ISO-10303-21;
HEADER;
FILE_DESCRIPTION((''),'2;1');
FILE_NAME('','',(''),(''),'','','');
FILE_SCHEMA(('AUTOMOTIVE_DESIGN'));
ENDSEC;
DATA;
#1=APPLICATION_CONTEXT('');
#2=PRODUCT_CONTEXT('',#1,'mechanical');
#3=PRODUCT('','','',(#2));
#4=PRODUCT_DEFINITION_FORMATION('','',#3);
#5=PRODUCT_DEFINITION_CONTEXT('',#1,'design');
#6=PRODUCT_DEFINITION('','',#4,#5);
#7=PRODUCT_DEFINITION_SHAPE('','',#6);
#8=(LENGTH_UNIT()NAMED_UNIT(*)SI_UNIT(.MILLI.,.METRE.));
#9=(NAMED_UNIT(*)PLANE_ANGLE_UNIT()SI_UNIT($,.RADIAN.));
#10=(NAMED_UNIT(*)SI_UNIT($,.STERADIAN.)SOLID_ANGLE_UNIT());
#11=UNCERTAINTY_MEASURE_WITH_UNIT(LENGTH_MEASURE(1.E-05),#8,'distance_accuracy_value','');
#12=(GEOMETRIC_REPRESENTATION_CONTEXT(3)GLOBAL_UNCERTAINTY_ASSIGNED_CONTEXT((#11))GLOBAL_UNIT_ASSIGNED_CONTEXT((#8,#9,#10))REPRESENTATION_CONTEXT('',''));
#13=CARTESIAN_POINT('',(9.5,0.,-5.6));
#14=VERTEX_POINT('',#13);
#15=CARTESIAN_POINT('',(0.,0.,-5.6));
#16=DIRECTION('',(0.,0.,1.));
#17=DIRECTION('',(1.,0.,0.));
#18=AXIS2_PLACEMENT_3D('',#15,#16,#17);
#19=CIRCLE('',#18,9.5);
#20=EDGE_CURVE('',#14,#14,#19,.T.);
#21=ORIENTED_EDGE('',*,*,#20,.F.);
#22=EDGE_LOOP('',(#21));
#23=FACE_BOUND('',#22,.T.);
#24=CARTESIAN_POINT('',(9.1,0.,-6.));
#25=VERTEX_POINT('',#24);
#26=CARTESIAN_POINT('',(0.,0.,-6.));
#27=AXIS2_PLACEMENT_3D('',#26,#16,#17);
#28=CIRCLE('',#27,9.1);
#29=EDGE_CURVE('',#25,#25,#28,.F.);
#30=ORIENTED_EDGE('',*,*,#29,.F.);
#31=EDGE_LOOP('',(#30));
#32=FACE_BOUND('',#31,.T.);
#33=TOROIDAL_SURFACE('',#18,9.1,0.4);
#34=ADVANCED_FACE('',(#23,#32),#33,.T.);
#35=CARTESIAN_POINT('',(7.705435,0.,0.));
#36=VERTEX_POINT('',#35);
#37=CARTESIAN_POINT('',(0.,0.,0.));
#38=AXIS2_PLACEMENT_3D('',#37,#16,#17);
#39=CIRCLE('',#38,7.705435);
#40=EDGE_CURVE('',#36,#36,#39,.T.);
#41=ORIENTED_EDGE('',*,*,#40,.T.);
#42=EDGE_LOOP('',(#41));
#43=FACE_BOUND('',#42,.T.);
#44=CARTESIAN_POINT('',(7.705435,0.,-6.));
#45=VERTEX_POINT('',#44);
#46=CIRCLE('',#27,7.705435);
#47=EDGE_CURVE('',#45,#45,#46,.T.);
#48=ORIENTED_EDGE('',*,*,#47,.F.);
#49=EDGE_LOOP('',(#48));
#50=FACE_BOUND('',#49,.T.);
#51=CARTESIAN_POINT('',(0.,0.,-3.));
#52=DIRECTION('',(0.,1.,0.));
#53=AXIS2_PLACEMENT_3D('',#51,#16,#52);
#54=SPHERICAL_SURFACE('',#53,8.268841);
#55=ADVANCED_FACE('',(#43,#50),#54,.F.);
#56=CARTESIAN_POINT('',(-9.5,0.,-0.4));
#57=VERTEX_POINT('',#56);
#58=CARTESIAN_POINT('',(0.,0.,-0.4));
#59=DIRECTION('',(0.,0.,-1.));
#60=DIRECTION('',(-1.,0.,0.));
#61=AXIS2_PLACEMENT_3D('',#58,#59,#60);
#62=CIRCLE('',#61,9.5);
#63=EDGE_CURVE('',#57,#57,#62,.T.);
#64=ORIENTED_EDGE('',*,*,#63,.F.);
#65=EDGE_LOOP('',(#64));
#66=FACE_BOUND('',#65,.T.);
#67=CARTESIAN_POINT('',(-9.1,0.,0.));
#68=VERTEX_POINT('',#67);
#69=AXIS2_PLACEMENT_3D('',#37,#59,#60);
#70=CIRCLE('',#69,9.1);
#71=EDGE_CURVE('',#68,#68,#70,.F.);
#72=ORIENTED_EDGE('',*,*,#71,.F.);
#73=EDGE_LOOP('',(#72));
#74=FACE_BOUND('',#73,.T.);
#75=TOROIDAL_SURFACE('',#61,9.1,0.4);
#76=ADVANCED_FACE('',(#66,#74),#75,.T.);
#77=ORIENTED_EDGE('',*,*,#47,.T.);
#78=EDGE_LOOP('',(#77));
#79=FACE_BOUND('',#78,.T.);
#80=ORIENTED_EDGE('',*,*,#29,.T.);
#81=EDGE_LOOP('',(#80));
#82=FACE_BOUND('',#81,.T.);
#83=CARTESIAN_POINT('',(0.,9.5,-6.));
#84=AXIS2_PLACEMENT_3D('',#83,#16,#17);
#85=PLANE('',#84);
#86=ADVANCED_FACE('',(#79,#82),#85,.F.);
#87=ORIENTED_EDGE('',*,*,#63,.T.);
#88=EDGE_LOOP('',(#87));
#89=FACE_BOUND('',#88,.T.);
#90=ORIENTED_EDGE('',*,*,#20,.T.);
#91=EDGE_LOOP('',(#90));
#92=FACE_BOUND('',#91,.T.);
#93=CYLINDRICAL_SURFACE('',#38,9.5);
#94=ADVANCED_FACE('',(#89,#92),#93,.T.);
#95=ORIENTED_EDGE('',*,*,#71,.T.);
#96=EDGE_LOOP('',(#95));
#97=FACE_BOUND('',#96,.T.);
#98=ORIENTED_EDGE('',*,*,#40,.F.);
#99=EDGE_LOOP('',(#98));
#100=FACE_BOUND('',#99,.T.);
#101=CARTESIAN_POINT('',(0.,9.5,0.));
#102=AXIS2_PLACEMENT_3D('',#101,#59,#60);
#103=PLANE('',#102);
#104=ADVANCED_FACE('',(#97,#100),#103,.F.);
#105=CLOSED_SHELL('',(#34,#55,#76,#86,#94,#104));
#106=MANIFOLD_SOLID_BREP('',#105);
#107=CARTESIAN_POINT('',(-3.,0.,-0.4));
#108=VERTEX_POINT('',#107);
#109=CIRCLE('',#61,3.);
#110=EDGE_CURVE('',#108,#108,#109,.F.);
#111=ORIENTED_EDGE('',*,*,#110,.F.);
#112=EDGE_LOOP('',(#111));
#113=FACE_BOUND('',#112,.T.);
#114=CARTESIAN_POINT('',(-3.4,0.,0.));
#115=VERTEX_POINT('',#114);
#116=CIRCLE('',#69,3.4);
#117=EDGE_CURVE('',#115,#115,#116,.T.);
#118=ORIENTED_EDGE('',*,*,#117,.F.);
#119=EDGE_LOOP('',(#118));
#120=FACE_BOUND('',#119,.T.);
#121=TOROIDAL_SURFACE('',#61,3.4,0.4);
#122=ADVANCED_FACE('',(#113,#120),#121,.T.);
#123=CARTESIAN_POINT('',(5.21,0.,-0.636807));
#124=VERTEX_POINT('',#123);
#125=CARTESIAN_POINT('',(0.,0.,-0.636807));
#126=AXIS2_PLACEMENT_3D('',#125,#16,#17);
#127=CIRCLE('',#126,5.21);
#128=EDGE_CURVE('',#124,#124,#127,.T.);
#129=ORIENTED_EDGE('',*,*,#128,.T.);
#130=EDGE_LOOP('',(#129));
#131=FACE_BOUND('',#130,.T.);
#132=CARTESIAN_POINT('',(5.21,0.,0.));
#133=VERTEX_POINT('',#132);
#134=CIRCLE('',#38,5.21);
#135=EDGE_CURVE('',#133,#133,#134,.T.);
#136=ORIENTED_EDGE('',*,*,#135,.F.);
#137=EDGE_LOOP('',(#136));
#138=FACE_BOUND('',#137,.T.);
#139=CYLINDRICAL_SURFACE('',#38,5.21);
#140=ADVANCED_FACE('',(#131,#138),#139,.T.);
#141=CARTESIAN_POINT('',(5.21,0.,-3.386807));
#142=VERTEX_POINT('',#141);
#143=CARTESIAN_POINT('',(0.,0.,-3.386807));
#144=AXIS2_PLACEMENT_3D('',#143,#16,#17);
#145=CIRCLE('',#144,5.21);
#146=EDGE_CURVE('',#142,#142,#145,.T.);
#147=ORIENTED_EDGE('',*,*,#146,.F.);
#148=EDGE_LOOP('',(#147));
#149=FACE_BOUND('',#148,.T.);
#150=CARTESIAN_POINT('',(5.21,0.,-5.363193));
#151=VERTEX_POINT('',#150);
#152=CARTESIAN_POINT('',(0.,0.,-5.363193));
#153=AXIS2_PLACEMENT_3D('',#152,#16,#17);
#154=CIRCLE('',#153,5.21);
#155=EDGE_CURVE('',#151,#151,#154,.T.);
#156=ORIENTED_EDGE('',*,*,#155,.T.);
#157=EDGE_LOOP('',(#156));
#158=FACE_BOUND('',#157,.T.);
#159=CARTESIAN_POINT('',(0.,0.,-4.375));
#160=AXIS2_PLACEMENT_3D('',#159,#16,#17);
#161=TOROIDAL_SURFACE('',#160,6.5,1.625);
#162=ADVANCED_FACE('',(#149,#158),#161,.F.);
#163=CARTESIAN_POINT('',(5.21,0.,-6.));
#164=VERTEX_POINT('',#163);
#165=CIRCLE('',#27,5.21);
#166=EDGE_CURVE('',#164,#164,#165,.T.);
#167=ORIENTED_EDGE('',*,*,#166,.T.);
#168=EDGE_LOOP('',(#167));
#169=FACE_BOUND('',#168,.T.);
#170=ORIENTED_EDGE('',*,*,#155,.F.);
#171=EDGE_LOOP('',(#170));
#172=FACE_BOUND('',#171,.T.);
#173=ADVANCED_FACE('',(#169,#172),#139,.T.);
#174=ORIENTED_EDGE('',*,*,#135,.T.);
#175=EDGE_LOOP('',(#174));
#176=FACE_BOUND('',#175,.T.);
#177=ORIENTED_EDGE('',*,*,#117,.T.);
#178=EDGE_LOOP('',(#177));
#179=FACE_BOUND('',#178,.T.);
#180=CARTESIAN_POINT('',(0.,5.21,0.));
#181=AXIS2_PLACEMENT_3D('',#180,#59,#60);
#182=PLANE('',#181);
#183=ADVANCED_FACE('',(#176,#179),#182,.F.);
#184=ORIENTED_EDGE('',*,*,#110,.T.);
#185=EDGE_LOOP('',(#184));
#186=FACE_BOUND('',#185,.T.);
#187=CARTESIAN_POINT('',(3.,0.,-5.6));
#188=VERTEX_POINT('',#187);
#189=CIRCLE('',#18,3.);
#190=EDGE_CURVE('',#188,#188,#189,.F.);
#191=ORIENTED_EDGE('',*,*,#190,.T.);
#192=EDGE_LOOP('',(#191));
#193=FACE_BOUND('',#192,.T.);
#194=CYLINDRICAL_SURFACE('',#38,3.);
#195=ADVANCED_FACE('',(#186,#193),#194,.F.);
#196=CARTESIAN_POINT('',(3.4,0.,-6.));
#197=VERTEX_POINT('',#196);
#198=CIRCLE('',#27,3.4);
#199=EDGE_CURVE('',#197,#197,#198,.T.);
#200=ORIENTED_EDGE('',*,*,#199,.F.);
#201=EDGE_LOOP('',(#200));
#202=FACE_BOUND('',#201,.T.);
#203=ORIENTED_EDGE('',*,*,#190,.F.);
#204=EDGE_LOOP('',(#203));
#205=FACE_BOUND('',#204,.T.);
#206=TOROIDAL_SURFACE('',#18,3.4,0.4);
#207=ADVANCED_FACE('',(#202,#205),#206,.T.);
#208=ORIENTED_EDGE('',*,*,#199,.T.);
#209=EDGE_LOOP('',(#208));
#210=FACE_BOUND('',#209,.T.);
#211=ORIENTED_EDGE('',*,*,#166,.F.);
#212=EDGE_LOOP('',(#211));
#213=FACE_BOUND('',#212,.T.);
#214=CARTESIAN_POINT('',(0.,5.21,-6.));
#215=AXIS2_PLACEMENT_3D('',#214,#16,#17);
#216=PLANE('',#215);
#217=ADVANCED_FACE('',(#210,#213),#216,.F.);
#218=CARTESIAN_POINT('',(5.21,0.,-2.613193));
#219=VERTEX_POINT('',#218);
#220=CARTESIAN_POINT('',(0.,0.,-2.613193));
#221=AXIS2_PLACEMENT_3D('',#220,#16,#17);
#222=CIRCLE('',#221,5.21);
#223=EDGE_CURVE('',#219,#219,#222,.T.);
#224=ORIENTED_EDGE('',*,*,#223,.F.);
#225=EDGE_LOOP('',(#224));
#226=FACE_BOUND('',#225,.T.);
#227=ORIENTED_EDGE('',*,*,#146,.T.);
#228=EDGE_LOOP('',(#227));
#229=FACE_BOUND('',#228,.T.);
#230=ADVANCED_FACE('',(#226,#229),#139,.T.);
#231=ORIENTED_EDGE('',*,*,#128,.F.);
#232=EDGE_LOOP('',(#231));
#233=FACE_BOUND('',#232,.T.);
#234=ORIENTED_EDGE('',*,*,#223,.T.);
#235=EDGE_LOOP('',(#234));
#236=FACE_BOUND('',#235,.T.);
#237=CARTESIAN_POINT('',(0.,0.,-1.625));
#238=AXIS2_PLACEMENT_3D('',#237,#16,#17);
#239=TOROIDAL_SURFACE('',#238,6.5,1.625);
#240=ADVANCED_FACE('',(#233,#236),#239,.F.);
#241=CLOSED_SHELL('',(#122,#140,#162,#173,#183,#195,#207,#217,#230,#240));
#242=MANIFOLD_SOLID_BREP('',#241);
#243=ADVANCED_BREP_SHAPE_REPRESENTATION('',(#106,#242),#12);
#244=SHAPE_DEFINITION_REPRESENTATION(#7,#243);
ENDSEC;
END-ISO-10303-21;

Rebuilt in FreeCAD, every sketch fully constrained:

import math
import FreeCAD as App
import Part
import Sketcher
from FreeCAD import Vector
Q = App.Units.Quantity


def edges_at(feature, points):
    """Names of the edges that pass closest to the given points."""
    edges = feature.Shape.Edges
    near = lambda p: min(range(len(edges)), key=lambda i: edges[i].distToShape(Part.Vertex(*p))[0])
    return sorted({f"Edge{near(p) + 1}" for p in points})

doc = App.newDocument("Part")
body = doc.addObject("PartDesign::Body", "Body")
body.AllowCompound = True

# Sketch on YZ plane
sketch1 = body.newObject("Sketcher::SketchObject", "Sketch")
sketch1.AttachmentSupport = (doc.getObject("YZ_Plane"), [""])
sketch1.MapMode = "FlatFace"
sketch1.addGeometry(Part.LineSegment(Vector(5.2, -0.6, 0), Vector(5.2, 0, 0)), False)
sketch1.addGeometry(Part.LineSegment(Vector(5.2, 0, 0), Vector(3, 0, 0)), False)
sketch1.addGeometry(Part.LineSegment(Vector(3, 0, 0), Vector(3, -6, 0)), False)
sketch1.addGeometry(Part.LineSegment(Vector(3, -6, 0), Vector(5.2, -6, 0)), False)
sketch1.addGeometry(Part.LineSegment(Vector(5.2, -6, 0), Vector(5.2, -5.4, 0)), False)
sketch1.addGeometry(Part.ArcOfCircle(Part.Circle(Vector(6.5, -4.4, 0), Vector(0, 0, 1), 1.6), math.radians(143), math.radians(217)), False)
sketch1.addGeometry(Part.LineSegment(Vector(5.2, -3.4, 0), Vector(5.2, -2.6, 0)), False)
sketch1.addGeometry(Part.ArcOfCircle(Part.Circle(Vector(6.5, -1.6, 0), Vector(0, 0, 1), 1.6), math.radians(143), math.radians(217)), False)
sketch1.addGeometry(Part.LineSegment(Vector(9.5, -6, 0), Vector(9.5, 0, 0)), False)
sketch1.addGeometry(Part.LineSegment(Vector(9.5, 0, 0), Vector(7.7, 0, 0)), False)
sketch1.addGeometry(Part.ArcOfCircle(Part.Circle(Vector(0, -3, 0), Vector(0, 0, 1), 8.3), math.radians(-21), math.radians(21)), False)
sketch1.addGeometry(Part.LineSegment(Vector(7.7, -6, 0), Vector(9.5, -6, 0)), False)
sketch1.addConstraint(Sketcher.Constraint("Coincident", 0, 2, 1, 1))
sketch1.addConstraint(Sketcher.Constraint("Coincident", 1, 2, 2, 1))
sketch1.addConstraint(Sketcher.Constraint("Coincident", 2, 2, 3, 1))
sketch1.addConstraint(Sketcher.Constraint("Coincident", 3, 2, 4, 1))
sketch1.addConstraint(Sketcher.Constraint("Coincident", 4, 2, 5, 2))
sketch1.addConstraint(Sketcher.Constraint("Coincident", 5, 1, 6, 1))
sketch1.addConstraint(Sketcher.Constraint("Coincident", 6, 2, 7, 2))
sketch1.addConstraint(Sketcher.Constraint("Coincident", 7, 1, 0, 1))
sketch1.addConstraint(Sketcher.Constraint("Coincident", 8, 2, 9, 1))
sketch1.addConstraint(Sketcher.Constraint("Coincident", 9, 2, 10, 2))
sketch1.addConstraint(Sketcher.Constraint("Coincident", 10, 1, 11, 1))
sketch1.addConstraint(Sketcher.Constraint("Coincident", 11, 2, 8, 1))
sketch1.addConstraint(Sketcher.Constraint("Vertical", 0))
sketch1.addConstraint(Sketcher.Constraint("Horizontal", 1))
sketch1.addConstraint(Sketcher.Constraint("Vertical", 2))
sketch1.addConstraint(Sketcher.Constraint("Horizontal", 3))
sketch1.addConstraint(Sketcher.Constraint("Vertical", 4))
sketch1.addConstraint(Sketcher.Constraint("Vertical", 6))
sketch1.addConstraint(Sketcher.Constraint("Vertical", 8))
sketch1.addConstraint(Sketcher.Constraint("Horizontal", 9))
sketch1.addConstraint(Sketcher.Constraint("Horizontal", 11))
sketch1.addConstraint(Sketcher.Constraint("Equal", 5, 7))
sketch1.addConstraint(Sketcher.Constraint("PointOnObject", 10, 3, -2))
sketch1.addConstraint(Sketcher.Constraint("PointOnObject", 0, 2, -1))
sketch1.addConstraint(Sketcher.Constraint("PointOnObject", 8, 2, -1))
sketch1.addConstraint(Sketcher.Constraint("Horizontal", 3, 2, 10, 1))
sketch1.addConstraint(Sketcher.Constraint("Vertical", 5, 3, 7, 3))
sketch1.addConstraint(Sketcher.Constraint("Vertical", 0, 2, 3, 2))
sketch1.addConstraint(Sketcher.Constraint("Vertical", 4, 2, 5, 1))
sketch1.addConstraint(Sketcher.Constraint("Vertical", 9, 2, 10, 1))
sketch1.addConstraint(Sketcher.Constraint("Equal", 0, 4))
sketch1.addConstraint(Sketcher.Constraint("DistanceY", 2, 2, 2, 1, Q("6 mm")))
sketch1.addConstraint(Sketcher.Constraint("DistanceX", -1, 1, 1, 2, Q("3 mm")))
sketch1.addConstraint(Sketcher.Constraint("Radius", 5, Q("1.625 mm")))
sketch1.addConstraint(Sketcher.Constraint("DistanceX", 7, 3, 8, 2, Q("3 mm")))
sketch1.addConstraint(Sketcher.Constraint("DistanceX", 1, 2, 1, 1, Q("2.21 mm")))
sketch1.addConstraint(Sketcher.Constraint("DistanceX", -1, 1, 5, 3, Q("6.5 mm")))
sketch1.addConstraint(Sketcher.Constraint("Radius", 10, Q("8.268841 mm")))
sketch1.addConstraint(Sketcher.Constraint("DistanceY", 5, 3, 7, 3, Q("2.75 mm")))
revolution = body.newObject("PartDesign::Revolution", "Revolution")
revolution.Profile = sketch1
revolution.ReferenceAxis = (sketch1, ["V_Axis"])
revolution.Angle = 360
doc.recompute()

fillet = body.newObject("PartDesign::Fillet", "Fillet")
fillet.Base = (revolution, edges_at(revolution, [(0, -3, -6), (0, -3, 0)]))
fillet.Radius = 0.4
doc.recompute()

fillet2 = body.newObject("PartDesign::Fillet", "Fillet001")
fillet2.Base = (fillet, edges_at(fillet, [(0, -9.5, 0), (0, -9.5, -6)]))
fillet2.Radius = 0.4

doc.recompute()
